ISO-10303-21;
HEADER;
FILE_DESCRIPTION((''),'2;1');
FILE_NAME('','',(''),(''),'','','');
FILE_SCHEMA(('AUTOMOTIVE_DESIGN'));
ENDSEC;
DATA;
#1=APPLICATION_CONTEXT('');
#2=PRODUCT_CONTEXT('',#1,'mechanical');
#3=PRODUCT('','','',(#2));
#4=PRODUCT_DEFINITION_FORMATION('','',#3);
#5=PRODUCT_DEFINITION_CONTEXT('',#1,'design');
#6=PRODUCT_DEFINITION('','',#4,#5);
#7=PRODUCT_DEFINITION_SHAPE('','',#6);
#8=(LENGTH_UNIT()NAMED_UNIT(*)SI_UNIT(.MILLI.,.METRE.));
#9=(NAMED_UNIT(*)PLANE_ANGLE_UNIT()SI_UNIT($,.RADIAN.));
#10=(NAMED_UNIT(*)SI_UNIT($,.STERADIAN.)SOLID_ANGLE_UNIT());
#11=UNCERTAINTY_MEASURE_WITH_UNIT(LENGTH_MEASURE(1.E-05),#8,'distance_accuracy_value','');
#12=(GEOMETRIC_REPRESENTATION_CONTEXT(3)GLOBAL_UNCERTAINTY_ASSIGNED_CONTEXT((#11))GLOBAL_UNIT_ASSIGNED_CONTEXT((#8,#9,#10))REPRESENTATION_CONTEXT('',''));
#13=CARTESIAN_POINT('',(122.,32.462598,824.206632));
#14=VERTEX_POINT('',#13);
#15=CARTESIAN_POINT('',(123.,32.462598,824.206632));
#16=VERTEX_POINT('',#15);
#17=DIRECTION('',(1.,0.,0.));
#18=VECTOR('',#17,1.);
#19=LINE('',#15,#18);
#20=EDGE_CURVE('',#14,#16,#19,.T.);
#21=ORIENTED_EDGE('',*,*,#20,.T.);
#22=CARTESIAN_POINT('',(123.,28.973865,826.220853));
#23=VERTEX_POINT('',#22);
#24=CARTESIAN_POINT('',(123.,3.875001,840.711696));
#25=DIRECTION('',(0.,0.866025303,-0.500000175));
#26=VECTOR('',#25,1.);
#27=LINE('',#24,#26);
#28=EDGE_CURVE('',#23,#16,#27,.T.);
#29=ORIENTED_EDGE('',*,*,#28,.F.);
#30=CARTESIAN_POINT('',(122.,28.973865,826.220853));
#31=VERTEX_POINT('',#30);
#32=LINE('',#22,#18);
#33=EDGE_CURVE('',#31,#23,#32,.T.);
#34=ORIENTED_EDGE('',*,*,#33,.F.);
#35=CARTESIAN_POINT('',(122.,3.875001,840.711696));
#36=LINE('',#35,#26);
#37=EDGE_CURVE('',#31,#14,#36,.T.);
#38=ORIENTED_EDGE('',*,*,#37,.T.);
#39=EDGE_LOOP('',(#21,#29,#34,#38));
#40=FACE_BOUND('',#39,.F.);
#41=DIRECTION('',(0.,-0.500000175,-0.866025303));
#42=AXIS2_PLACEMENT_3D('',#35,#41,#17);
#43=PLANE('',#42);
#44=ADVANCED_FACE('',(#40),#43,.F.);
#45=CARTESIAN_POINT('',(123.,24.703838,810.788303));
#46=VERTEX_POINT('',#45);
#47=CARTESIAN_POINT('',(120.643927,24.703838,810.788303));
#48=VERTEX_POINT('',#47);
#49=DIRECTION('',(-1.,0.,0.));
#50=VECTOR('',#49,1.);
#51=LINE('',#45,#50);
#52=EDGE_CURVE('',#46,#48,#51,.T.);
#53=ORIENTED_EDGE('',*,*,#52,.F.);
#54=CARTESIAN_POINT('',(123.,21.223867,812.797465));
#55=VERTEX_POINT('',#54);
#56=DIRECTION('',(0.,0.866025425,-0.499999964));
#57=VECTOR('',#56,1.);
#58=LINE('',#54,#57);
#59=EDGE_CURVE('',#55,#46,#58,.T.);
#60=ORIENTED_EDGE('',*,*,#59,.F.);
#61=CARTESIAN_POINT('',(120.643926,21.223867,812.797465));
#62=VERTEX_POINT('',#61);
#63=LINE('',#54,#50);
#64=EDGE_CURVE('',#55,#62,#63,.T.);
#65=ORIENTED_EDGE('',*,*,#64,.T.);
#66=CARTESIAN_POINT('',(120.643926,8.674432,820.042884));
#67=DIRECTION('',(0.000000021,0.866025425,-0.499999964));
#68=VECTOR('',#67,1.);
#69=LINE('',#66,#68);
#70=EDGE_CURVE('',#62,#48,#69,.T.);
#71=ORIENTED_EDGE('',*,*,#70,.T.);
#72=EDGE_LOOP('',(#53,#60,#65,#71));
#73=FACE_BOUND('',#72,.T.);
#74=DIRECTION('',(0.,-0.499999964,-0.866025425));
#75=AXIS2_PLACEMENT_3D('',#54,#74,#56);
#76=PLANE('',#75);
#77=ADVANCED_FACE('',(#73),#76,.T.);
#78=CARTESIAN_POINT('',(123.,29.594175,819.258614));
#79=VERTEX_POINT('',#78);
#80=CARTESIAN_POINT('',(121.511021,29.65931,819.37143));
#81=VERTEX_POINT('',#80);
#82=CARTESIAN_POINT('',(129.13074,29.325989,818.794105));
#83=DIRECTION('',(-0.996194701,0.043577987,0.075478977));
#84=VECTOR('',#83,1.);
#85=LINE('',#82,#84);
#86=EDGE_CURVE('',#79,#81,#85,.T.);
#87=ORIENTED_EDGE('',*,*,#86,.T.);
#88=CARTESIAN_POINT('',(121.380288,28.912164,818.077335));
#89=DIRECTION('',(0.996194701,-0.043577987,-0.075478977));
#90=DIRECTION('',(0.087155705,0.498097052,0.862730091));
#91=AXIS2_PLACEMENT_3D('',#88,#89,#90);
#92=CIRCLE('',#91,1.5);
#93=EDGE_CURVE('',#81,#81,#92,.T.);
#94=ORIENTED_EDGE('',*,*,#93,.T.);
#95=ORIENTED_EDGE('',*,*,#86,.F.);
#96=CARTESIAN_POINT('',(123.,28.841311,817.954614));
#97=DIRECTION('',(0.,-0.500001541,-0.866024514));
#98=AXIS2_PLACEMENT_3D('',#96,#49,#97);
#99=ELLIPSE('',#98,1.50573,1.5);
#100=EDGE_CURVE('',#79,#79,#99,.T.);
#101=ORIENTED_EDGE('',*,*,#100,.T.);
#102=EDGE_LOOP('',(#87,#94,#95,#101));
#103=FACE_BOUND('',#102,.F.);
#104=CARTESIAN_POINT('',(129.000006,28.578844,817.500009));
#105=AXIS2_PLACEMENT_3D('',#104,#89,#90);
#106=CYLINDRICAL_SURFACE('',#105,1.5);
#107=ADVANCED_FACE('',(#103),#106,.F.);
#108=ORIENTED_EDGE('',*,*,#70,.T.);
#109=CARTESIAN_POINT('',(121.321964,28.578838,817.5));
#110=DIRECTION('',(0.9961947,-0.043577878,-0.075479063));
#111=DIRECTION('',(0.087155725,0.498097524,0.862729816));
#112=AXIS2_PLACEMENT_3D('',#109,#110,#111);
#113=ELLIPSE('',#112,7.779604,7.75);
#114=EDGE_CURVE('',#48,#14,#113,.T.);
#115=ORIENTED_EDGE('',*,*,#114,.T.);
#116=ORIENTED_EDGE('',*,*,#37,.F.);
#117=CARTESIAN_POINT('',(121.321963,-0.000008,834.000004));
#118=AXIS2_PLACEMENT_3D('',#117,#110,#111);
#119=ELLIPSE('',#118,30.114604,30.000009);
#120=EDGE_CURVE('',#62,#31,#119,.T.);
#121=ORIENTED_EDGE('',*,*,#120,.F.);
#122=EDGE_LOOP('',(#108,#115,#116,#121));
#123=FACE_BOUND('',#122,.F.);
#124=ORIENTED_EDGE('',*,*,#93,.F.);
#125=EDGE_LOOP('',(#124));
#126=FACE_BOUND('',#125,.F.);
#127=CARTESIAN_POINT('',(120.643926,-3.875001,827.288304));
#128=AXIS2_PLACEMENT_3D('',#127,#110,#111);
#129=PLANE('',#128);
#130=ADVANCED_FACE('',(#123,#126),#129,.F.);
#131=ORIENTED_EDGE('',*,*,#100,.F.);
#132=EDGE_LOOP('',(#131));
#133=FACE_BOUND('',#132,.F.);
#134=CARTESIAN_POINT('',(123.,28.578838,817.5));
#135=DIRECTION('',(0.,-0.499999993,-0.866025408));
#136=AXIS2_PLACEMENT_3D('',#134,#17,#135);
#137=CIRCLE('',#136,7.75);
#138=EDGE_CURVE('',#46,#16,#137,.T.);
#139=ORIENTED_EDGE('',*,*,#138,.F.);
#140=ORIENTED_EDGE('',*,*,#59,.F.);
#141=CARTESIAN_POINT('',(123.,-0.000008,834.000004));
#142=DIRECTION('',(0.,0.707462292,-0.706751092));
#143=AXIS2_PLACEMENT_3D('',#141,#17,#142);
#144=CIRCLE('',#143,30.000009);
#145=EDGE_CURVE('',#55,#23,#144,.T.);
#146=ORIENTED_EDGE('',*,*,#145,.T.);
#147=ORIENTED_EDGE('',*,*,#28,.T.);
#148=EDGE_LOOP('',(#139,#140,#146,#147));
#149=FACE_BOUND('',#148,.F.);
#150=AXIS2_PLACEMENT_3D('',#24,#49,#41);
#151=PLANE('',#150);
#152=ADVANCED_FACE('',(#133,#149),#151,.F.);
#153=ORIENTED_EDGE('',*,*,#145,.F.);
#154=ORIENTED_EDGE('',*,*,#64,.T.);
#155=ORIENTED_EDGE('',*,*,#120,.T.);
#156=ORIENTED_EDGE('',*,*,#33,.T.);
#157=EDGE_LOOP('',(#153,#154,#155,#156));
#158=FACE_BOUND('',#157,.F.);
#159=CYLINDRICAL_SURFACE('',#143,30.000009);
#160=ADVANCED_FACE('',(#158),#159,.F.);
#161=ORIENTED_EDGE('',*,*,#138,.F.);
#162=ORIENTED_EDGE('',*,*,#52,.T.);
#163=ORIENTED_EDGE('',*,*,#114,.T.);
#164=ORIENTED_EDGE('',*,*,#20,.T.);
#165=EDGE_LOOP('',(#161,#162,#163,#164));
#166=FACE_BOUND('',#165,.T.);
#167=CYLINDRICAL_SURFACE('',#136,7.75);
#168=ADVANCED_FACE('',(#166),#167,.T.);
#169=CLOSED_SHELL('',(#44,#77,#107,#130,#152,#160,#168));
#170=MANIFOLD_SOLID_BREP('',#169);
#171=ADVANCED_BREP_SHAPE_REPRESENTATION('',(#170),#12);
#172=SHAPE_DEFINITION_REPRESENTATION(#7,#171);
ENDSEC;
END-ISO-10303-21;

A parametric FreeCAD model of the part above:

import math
import FreeCAD as App
import Part
import Sketcher

V = App.Vector
Q = App.Units.Quantity

doc = App.newDocument("Part")
body = doc.addObject("PartDesign::Body", "Body")

# Sketch on an angled plane
sketch1 = body.newObject("Sketcher::SketchObject", "Sketch")
sketch1.Placement = App.Placement(V(6, 0, 0), App.Rotation(V(1, 0, 0), V(0, 0.500000175, 0.866025303), V(0, -0.866025303, 0.500000175), "ZXY"))
sketch1.addGeometry([
    Part.LineSegment(V(-6, -7.75, 0), V(-6, 7.75, 0)),
    Part.LineSegment(V(-6, 7.75, 0), V(-7, 7.75, 0)),
    Part.LineSegment(V(-7, 7.75, 0), V(-8.356074, -7.75, 0)),
    Part.LineSegment(V(-8.356074, -7.75, 0), V(-6, -7.75, 0)),
], False)
sketch1.addConstraint([
    Sketcher.Constraint("Coincident", 0, 2, 1, 1),
    Sketcher.Constraint("Coincident", 1, 2, 2, 1),
    Sketcher.Constraint("Coincident", 2, 2, 3, 1),
    Sketcher.Constraint("Coincident", 3, 2, 0, 1),
    Sketcher.Constraint("Vertical", 0),
    Sketcher.Constraint("Horizontal", 1),
    Sketcher.Constraint("Horizontal", 3),
    Sketcher.Constraint("DistanceX", 1, 2, 1, 1, 1.0),
    Sketcher.Constraint("Angle", 2, Q("-94.999999 deg")),
    Sketcher.Constraint("DistanceY", 0, 1, 0, 2, 15.5),
    Sketcher.Constraint("DistanceX", 0, 2, -1, 1, 6.0),
    Sketcher.Constraint("DistanceY", -1, 1, 0, 2, 7.75),
])
pad1 = body.newObject("PartDesign::Pad", "Pad")
pad1.Profile = sketch1
pad1.Length = 42
pad1.Reversed = True

# Sketch on YZ plane
sketch2 = body.newObject("Sketcher::SketchObject", "Sketch001")
sketch2.AttachmentSupport = (doc.getObject("YZ_Plane"), [""])
sketch2.MapMode = "FlatFace"
sketch2.addGeometry([
    Part.LineSegment(V(-9.71447, 8.066773, 0), V(-9.71447, -33.150084, 0)),  # 0
    Part.LineSegment(V(-9.71447, -33.150084, 0), V(41.735508, -33.150084, 0)),  # 1
    Part.LineSegment(V(41.735508, -33.150084, 0), V(41.735508, 8.066773, 0)),  # 2
    Part.LineSegment(V(41.735508, 8.066773, 0), V(-9.71447, 8.066773, 0)),  # 3
    Part.LineSegment(V(24.703838, -23.211697, 0), V(21.223867, -21.202535, 0)),  # 4
    Part.ArcOfCircle(Part.Circle(V(-0.000008, 0.000004, 0), V(0, 0, 1), 30.000009), math.radians(-44.971186), math.radians(-15.028813)),  # 5
    Part.LineSegment(V(28.973867, -7.779141, 0), V(32.453838, -9.788303, 0)),  # 6
    Part.ArcOfCircle(Part.Circle(V(28.578838, -16.5, 0), V(0, 0, 1), 7.75), math.radians(-120), math.radians(60)),  # 7
], False)
sketch2.addConstraint([
    Sketcher.Constraint("Coincident", 0, 2, 1, 1),
    Sketcher.Constraint("Coincident", 1, 2, 2, 1),
    Sketcher.Constraint("Coincident", 2, 2, 3, 1),
    Sketcher.Constraint("Coincident", 3, 2, 0, 1),
    Sketcher.Constraint("Coincident", 4, 2, 5, 1),
    Sketcher.Constraint("Coincident", 5, 2, 6, 1),
    Sketcher.Constraint("Tangent", 6, 2, 7, 2),
    Sketcher.Constraint("Tangent", 7, 1, 4, 1),
    Sketcher.Constraint("Vertical", 0),
    Sketcher.Constraint("Horizontal", 1),
    Sketcher.Constraint("Vertical", 2),
    Sketcher.Constraint("Horizontal", 3),
    Sketcher.Constraint("Coincident", 5, 3, -1, 1),
    Sketcher.Constraint("Parallel", 4, 6),
    Sketcher.Constraint("Equal", 4, 6),
    Sketcher.Constraint("Angle", 4, Q("150.000002 deg")),
    Sketcher.Constraint("Radius", 7, 7.75),
    Sketcher.Constraint("DistanceY", 7, 3, -1, 1, 16.5),
    Sketcher.Constraint("Radius", 5, 30.000009),
    Sketcher.Constraint("DistanceX", 1, 1, 1, 2, 51.449978),
    Sketcher.Constraint("DistanceY", 0, 2, 0, 1, 41.216857),
    Sketcher.Constraint("DistanceX", 0, 2, -1, 1, 9.71447),
    Sketcher.Constraint("DistanceY", 0, 2, 5, 3, 33.150088),
])
pocket1 = body.newObject("PartDesign::Pocket", "Pocket")
pocket1.Profile = sketch2
pocket1.Type = "ThroughAll"
pocket1.Midplane = True

# Sketch on an angled plane
sketch3 = body.newObject("Sketcher::SketchObject", "Sketch002")
sketch3.Placement = App.Placement(V(6, 0, 0), App.Rotation(V(0.087155705, 0.498097052, 0.862730091), V(-0.000000185, -0.866025569, 0.499999714), V(0.996194701, -0.043577987, -0.075478977), "ZXY"))
sketch3.addGeometry(Part.Circle(V(0, -33, 0), V(0, 0, 1), 1.5), False)
sketch3.addConstraint([
    Sketcher.Constraint("PointOnObject", 0, 3, -2),
    Sketcher.Constraint("Diameter", 0, 3.0),
    Sketcher.Constraint("DistanceY", 0, 3, -1, 1, 33.0),
])
pocket2 = body.newObject("PartDesign::Pocket", "Pocket001")
pocket2.Profile = sketch3
pocket2.Type = "ThroughAll"
pocket2.Midplane = True
body2 = doc.addObject("PartDesign::Body", "Body001")
doc.recompute()

body.Placement = App.Placement(V(123, 0, 834), App.Rotation(V(0, 0, 1), 0))
boolean = body2.newObject("PartDesign::Boolean", "Boolean")
boolean.Type = "Fuse"
boolean.addObjects([body])

doc.recompute()
